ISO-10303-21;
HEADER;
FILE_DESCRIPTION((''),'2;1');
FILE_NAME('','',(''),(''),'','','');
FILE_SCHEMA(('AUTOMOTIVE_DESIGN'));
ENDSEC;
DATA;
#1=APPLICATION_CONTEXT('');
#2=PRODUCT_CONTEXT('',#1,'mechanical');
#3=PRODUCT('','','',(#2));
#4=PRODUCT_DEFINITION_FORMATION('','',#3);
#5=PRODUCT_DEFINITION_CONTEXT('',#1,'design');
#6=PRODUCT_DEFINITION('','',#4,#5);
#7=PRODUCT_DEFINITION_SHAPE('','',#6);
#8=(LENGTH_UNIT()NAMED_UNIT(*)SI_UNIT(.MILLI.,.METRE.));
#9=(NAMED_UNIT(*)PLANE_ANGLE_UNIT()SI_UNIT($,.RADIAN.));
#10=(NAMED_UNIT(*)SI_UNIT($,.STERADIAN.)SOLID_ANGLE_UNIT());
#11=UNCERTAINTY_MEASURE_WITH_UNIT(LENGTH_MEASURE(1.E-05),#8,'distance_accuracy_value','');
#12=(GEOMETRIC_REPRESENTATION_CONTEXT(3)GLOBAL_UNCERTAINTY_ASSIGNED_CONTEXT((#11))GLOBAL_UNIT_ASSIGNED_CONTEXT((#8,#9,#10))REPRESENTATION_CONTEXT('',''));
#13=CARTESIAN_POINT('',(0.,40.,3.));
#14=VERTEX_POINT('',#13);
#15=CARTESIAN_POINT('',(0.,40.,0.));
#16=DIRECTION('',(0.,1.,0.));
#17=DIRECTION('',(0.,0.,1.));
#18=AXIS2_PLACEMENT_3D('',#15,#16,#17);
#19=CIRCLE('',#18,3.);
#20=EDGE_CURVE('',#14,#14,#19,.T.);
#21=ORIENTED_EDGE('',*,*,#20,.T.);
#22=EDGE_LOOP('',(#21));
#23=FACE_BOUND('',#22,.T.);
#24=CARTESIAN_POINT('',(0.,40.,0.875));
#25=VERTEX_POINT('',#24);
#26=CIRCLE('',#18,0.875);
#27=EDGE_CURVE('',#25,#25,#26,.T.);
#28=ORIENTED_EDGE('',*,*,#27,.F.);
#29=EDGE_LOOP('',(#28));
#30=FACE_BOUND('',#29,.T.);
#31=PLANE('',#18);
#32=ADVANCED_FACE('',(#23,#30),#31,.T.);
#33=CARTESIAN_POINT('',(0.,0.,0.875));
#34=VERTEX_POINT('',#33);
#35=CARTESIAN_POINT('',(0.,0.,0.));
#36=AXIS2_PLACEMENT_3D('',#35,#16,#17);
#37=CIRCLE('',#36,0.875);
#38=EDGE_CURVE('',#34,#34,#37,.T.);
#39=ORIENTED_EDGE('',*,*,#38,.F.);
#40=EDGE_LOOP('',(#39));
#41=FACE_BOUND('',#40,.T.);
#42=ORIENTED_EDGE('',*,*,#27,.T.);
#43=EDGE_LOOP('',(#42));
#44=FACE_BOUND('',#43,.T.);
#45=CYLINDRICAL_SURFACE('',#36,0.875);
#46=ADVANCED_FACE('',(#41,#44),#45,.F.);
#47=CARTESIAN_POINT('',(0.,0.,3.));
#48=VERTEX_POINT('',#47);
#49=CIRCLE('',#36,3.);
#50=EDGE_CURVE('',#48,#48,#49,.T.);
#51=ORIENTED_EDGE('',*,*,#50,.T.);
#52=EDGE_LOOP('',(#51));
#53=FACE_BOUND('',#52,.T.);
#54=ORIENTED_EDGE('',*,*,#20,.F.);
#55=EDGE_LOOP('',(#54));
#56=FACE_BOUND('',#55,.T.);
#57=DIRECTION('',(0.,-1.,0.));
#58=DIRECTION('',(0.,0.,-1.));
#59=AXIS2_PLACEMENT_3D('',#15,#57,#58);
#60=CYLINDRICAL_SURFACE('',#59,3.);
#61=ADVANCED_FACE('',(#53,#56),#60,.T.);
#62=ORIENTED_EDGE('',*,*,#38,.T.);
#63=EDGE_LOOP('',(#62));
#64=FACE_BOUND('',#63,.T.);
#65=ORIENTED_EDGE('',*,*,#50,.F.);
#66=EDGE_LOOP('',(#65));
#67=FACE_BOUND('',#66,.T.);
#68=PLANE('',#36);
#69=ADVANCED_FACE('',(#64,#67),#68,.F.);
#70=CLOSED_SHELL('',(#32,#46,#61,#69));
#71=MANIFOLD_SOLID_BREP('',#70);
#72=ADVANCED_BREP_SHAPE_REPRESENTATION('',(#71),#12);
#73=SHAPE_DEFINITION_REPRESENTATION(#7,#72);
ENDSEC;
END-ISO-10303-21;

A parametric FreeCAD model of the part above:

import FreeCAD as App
import Part
import Sketcher
from FreeCAD import Vector

doc = App.newDocument("Part")
body = doc.addObject("PartDesign::Body", "Body")

sketch1 = body.newObject("Sketcher::SketchObject", "Sketch")
sketch1.AttachmentSupport = (doc.getObject("XZ_Plane"), [""])
sketch1.MapMode = "FlatFace"
sketch1.addGeometry(Part.Circle(Vector(0, 0, 0), Vector(0, 0, 1), 3), False)
sketch1.addConstraint([
    Sketcher.Constraint("Coincident", 0, 3, -1, 1),
    Sketcher.Constraint("Diameter", 0, 6.0),
])
pad1 = body.newObject("PartDesign::Pad", "Pad")
pad1.Profile = sketch1
pad1.Length = 40
pad1.Reversed = True

sketch2 = body.newObject("Sketcher::SketchObject", "Sketch001")
sketch2.AttachmentSupport = (doc.getObject("XZ_Plane"), [""])
sketch2.MapMode = "FlatFace"
sketch2.AttachmentOffset = App.Placement(Vector(0, 0, -40), App.Rotation())
sketch2.addGeometry(Part.Circle(Vector(0, 0, 0), Vector(0, 0, 1), 0.9), False)
sketch2.addConstraint([
    Sketcher.Constraint("Coincident", 0, 3, -1, 1),
    Sketcher.Constraint("Diameter", 0, 1.75),
])
pocket1 = body.newObject("PartDesign::Pocket", "Pocket")
pocket1.Profile = sketch2
pocket1.Type = "ThroughAll"
pocket1.Reversed = True

doc.recompute()
